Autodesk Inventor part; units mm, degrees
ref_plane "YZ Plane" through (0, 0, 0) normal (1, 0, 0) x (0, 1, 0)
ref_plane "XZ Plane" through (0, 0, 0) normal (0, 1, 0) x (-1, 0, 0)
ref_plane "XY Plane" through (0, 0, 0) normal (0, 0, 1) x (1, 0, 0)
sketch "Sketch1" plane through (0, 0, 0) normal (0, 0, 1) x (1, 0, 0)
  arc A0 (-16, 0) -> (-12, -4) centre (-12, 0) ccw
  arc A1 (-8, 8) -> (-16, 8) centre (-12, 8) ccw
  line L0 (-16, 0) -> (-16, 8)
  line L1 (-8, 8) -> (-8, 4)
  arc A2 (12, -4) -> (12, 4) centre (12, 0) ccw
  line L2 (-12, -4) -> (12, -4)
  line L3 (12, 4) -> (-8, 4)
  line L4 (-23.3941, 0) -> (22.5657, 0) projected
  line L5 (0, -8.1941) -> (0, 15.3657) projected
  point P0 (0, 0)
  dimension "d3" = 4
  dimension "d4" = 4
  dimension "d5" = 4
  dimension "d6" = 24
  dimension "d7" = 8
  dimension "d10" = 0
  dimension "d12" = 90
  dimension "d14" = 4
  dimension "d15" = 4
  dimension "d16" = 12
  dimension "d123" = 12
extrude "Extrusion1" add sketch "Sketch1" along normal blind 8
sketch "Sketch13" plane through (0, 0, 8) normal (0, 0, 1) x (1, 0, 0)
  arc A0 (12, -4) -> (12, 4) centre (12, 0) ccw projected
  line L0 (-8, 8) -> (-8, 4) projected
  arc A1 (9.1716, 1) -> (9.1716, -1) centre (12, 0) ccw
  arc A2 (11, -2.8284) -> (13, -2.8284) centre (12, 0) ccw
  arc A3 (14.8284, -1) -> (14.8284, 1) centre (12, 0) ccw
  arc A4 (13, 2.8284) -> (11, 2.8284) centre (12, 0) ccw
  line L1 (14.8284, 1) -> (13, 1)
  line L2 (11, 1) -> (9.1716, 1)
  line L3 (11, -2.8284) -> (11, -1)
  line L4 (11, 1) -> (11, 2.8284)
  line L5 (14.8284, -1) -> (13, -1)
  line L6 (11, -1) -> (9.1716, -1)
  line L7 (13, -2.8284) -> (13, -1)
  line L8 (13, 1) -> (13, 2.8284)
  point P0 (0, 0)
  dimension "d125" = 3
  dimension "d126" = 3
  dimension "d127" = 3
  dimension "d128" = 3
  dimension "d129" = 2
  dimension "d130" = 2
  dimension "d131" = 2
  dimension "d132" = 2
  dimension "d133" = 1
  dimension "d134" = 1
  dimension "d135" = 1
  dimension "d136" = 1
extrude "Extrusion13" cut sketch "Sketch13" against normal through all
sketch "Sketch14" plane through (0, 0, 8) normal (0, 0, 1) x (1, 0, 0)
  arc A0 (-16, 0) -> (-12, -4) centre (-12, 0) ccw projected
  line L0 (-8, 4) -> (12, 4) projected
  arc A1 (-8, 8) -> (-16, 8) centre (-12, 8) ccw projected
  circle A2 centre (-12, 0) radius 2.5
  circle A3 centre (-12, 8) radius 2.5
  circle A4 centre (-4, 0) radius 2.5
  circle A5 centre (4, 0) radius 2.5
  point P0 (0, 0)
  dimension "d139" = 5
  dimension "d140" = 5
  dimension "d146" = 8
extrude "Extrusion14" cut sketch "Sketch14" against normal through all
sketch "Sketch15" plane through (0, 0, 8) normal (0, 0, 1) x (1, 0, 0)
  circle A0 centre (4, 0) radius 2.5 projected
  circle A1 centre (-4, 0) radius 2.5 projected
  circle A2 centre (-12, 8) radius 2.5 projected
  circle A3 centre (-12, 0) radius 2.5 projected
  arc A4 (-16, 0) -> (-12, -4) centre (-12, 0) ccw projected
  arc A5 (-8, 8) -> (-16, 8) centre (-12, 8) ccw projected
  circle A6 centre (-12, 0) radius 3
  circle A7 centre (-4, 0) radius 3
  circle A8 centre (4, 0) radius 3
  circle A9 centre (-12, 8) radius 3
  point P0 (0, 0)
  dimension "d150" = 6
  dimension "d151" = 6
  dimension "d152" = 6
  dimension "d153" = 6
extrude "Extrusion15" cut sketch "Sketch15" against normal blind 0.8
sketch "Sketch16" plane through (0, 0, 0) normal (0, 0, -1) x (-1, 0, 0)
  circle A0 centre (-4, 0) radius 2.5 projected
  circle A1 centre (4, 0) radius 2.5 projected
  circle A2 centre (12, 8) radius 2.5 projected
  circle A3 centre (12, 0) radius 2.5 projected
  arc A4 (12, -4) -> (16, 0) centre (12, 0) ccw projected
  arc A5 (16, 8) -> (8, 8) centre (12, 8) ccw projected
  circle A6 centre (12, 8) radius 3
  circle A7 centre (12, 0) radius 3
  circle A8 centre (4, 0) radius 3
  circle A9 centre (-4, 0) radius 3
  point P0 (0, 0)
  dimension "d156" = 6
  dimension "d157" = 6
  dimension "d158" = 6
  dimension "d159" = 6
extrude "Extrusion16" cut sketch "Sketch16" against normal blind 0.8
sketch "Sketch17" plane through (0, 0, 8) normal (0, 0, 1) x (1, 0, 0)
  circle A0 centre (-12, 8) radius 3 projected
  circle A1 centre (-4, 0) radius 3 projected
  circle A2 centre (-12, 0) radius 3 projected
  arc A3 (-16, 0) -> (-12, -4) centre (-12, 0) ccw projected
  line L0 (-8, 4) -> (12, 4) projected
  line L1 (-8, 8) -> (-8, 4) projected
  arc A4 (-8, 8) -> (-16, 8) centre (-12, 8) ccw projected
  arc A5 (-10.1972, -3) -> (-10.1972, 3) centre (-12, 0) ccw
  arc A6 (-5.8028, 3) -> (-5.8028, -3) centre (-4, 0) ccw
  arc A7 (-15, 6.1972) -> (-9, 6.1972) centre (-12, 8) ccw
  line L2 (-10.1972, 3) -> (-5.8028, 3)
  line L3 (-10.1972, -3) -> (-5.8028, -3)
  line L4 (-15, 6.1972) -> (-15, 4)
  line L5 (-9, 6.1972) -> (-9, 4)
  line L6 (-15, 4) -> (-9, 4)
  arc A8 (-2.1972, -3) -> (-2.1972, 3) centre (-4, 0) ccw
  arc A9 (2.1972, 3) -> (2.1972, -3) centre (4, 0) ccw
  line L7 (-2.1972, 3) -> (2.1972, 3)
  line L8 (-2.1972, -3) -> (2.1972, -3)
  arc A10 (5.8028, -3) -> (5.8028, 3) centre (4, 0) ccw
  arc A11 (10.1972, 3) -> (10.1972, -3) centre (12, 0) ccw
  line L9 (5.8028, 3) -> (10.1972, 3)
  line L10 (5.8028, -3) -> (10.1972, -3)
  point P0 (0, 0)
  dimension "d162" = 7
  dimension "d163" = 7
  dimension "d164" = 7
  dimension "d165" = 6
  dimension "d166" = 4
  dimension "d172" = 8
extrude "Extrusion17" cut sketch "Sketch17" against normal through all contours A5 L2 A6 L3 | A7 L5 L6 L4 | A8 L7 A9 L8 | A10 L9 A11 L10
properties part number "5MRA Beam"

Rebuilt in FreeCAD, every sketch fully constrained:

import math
import FreeCAD as App
import Part
import Sketcher
from FreeCAD import Vector
Q = App.Units.Quantity

doc = App.newDocument("Part")
params = doc.addObject("Spreadsheet::Sheet", "Params")
for row, (alias, value) in enumerate([
    ("sketch1_radius", "4 mm"),
    ("sketch1_width", "24 mm"),
    ("sketch1_height", "4 mm"),
    ("pad1_length", "8 mm"),
    ("sketch2_radius", "3 mm"),
    ("sketch3_diameter", "5 mm"),
    ("sketch4_diameter", "6 mm"),
    ("sketch4_diameter2", "5 mm"),
    ("pocket3_length", "0.8 mm"),
    ("sketch5_diameter", "6 mm"),
    ("sketch5_diameter2", "5 mm"),
    ("pocket4_length", "0.8 mm"),
    ("sketch6_radius", "3.5 mm"),
    ("sketch6_width", "6 mm"),
], start=1):
    params.set(f"A{row}", alias)
    params.set(f"B{row}", "=" + value)
    params.setAlias(f"B{row}", alias)

body = doc.addObject("PartDesign::Body", "Body")

# Sketch on XY plane
sketch1 = body.newObject("Sketcher::SketchObject", "Sketch")
sketch1.AttachmentSupport = (doc.getObject("XY_Plane"), [""])
sketch1.MapMode = "FlatFace"
sketch1.addGeometry(Part.LineSegment(Vector(-12, -4, 0), Vector(12, -4, 0)), False)
sketch1.addGeometry(Part.ArcOfCircle(Part.Circle(Vector(12, 0, 0), Vector(0, 0, 1), 4), math.radians(-90), math.radians(90)), False)
sketch1.addGeometry(Part.LineSegment(Vector(12, 4, 0), Vector(-8, 4, 0)), False)
sketch1.addGeometry(Part.LineSegment(Vector(-8, 4, 0), Vector(-8, 8, 0)), False)
sketch1.addGeometry(Part.ArcOfCircle(Part.Circle(Vector(-12, 8, 0), Vector(0, 0, 1), 4), math.radians(0), math.radians(180)), False)
sketch1.addGeometry(Part.LineSegment(Vector(-16, 8, 0), Vector(-16, 0, 0)), False)
sketch1.addGeometry(Part.ArcOfCircle(Part.Circle(Vector(-12, 0, 0), Vector(0, 0, 1), 4), math.radians(180), math.radians(270)), False)
sketch1.addConstraint(Sketcher.Constraint("Tangent", 0, 2, 1, 1))
sketch1.addConstraint(Sketcher.Constraint("Tangent", 1, 2, 2, 1))
sketch1.addConstraint(Sketcher.Constraint("Coincident", 2, 2, 3, 1))
sketch1.addConstraint(Sketcher.Constraint("Tangent", 3, 2, 4, 1))
sketch1.addConstraint(Sketcher.Constraint("Tangent", 4, 2, 5, 1))
sketch1.addConstraint(Sketcher.Constraint("Tangent", 5, 2, 6, 1))
sketch1.addConstraint(Sketcher.Constraint("Tangent", 6, 2, 0, 1))
sketch1.addConstraint(Sketcher.Constraint("Horizontal", 0))
sketch1.addConstraint(Sketcher.Constraint("Horizontal", 2))
sketch1.addConstraint(Sketcher.Constraint("Vertical", 3))
sketch1.addConstraint(Sketcher.Constraint("Vertical", 5))
sketch1.addConstraint(Sketcher.Constraint("Equal", 1, 4))
sketch1.addConstraint(Sketcher.Constraint("Equal", 4, 6))
sketch1.addConstraint(Sketcher.Constraint("Symmetric", 1, 3, 6, 3, -1, 1))
sketch1.addConstraint(Sketcher.Constraint("Radius", 1, Q("4 mm")))
sketch1.addConstraint(Sketcher.Constraint("DistanceX", 0, 1, 0, 2, Q("24 mm")))
sketch1.addConstraint(Sketcher.Constraint("DistanceY", 3, 1, 3, 2, Q("4 mm")))
sketch1.setExpression("Constraints[14]", "Params.sketch1_radius")
sketch1.setExpression("Constraints[15]", "Params.sketch1_width")
sketch1.setExpression("Constraints[16]", "Params.sketch1_height")
pad1 = body.newObject("PartDesign::Pad", "Pad")
pad1.Profile = sketch1
pad1.setExpression("Length", "Params.pad1_length")

# Sketch on XY plane
sketch2 = body.newObject("Sketcher::SketchObject", "Sketch001")
sketch2.AttachmentSupport = (doc.getObject("XY_Plane"), [""])
sketch2.MapMode = "FlatFace"
sketch2.AttachmentOffset = App.Placement(Vector(0, 0, 8), App.Rotation())
sketch2.addGeometry(Part.LineSegment(Vector(11, 1, 0), Vector(9.2, 1, 0)), False)
sketch2.addGeometry(Part.ArcOfCircle(Part.Circle(Vector(12, 0, 0), Vector(0, 0, 1), 3), math.radians(161), math.radians(199)), False)
sketch2.addGeometry(Part.LineSegment(Vector(9.2, -1, 0), Vector(11, -1, 0)), False)
sketch2.addGeometry(Part.LineSegment(Vector(11, -1, 0), Vector(11, -2.8, 0)), False)
sketch2.addGeometry(Part.ArcOfCircle(Part.Circle(Vector(12, 0, 0), Vector(0, 0, 1), 3), math.radians(-109), math.radians(-71)), False)
sketch2.addGeometry(Part.LineSegment(Vector(13, -2.8, 0), Vector(13, -1, 0)), False)
sketch2.addGeometry(Part.LineSegment(Vector(13, -1, 0), Vector(14.8, -1, 0)), False)
sketch2.addGeometry(Part.ArcOfCircle(Part.Circle(Vector(12, 0, 0), Vector(0, 0, 1), 3), math.radians(-19), math.radians(19)), False)
sketch2.addGeometry(Part.LineSegment(Vector(14.8, 1, 0), Vector(13, 1, 0)), False)
sketch2.addGeometry(Part.LineSegment(Vector(13, 1, 0), Vector(13, 2.8, 0)), False)
sketch2.addGeometry(Part.ArcOfCircle(Part.Circle(Vector(12, 0, 0), Vector(0, 0, 1), 3), math.radians(71), math.radians(109)), False)
sketch2.addGeometry(Part.LineSegment(Vector(11, 2.8, 0), Vector(11, 1, 0)), False)
sketch2.addConstraint(Sketcher.Constraint("Coincident", 0, 2, 1, 1))
sketch2.addConstraint(Sketcher.Constraint("Coincident", 1, 2, 2, 1))
sketch2.addConstraint(Sketcher.Constraint("Coincident", 2, 2, 3, 1))
sketch2.addConstraint(Sketcher.Constraint("Coincident", 3, 2, 4, 1))
sketch2.addConstraint(Sketcher.Constraint("Coincident", 4, 2, 5, 1))
sketch2.addConstraint(Sketcher.Constraint("Coincident", 5, 2, 6, 1))
sketch2.addConstraint(Sketcher.Constraint("Coincident", 6, 2, 7, 1))
sketch2.addConstraint(Sketcher.Constraint("Coincident", 7, 2, 8, 1))
sketch2.addConstraint(Sketcher.Constraint("Coincident", 8, 2, 9, 1))
sketch2.addConstraint(Sketcher.Constraint("Coincident", 9, 2, 10, 1))
sketch2.addConstraint(Sketcher.Constraint("Coincident", 10, 2, 11, 1))
sketch2.addConstraint(Sketcher.Constraint("Coincident", 11, 2, 0, 1))
sketch2.addConstraint(Sketcher.Constraint("Horizontal", 0))
sketch2.addConstraint(Sketcher.Constraint("Horizontal", 2))
sketch2.addConstraint(Sketcher.Constraint("Vertical", 3))
sketch2.addConstraint(Sketcher.Constraint("Vertical", 5))
sketch2.addConstraint(Sketcher.Constraint("Horizontal", 6))
sketch2.addConstraint(Sketcher.Constraint("Horizontal", 8))
sketch2.addConstraint(Sketcher.Constraint("Vertical", 9))
sketch2.addConstraint(Sketcher.Constraint("Vertical", 11))
sketch2.addConstraint(Sketcher.Constraint("Coincident", 4, 3, 1, 3))
sketch2.addConstraint(Sketcher.Constraint("Coincident", 7, 3, 1, 3))
sketch2.addConstraint(Sketcher.Constraint("Coincident", 10, 3, 1, 3))
sketch2.addConstraint(Sketcher.Constraint("Equal", 1, 4))
sketch2.addConstraint(Sketcher.Constraint("Equal", 4, 7))
sketch2.addConstraint(Sketcher.Constraint("Equal", 7, 10))
sketch2.addConstraint(Sketcher.Constraint("Symmetric", 0, 2, 1, 2, -1))
sketch2.addConstraint(Sketcher.Constraint("Symmetric", 5, 2, 8, 2, -1))
sketch2.addConstraint(Sketcher.Constraint("Horizontal", 3, 2, 4, 2))
sketch2.addConstraint(Sketcher.Constraint("Horizontal", 2, 2, 5, 2))
sketch2.addConstraint(Sketcher.Constraint("Horizontal", 9, 2, 10, 2))
sketch2.addConstraint(Sketcher.Constraint("Equal", 8, 3))
sketch2.addConstraint(Sketcher.Constraint("Radius", 1, Q("3 mm")))
sketch2.addConstraint(Sketcher.Constraint("DistanceY", -1, 1, 0, 2, Q("1 mm")))
sketch2.addConstraint(Sketcher.Constraint("DistanceX", -1, 1, 1, 3, Q("12 mm")))
sketch2.setExpression("Constraints[32]", "Params.sketch2_radius")
pocket1 = body.newObject("PartDesign::Pocket", "Pocket")
pocket1.Profile = sketch2
pocket1.Type = "ThroughAll"

# Sketch on XY plane
sketch3 = body.newObject("Sketcher::SketchObject", "Sketch002")
sketch3.AttachmentSupport = (doc.getObject("XY_Plane"), [""])
sketch3.MapMode = "FlatFace"
sketch3.AttachmentOffset = App.Placement(Vector(0, 0, 8), App.Rotation())
sketch3.addGeometry(Part.Circle(Vector(-12, 0, 0), Vector(0, 0, 1), 2.5), False)
sketch3.addGeometry(Part.Circle(Vector(-12, 8, 0), Vector(0, 0, 1), 2.5), False)
sketch3.addGeometry(Part.Circle(Vector(-4, 0, 0), Vector(0, 0, 1), 2.5), False)
sketch3.addGeometry(Part.Circle(Vector(4, 0, 0), Vector(0, 0, 1), 2.5), False)
sketch3.addConstraint(Sketcher.Constraint("Equal", 0, 1))
sketch3.addConstraint(Sketcher.Constraint("Equal", 1, 2))
sketch3.addConstraint(Sketcher.Constraint("Equal", 2, 3))
sketch3.addConstraint(Sketcher.Constraint("Symmetric", 2, 3, 3, 3, -1, 1))
sketch3.addConstraint(Sketcher.Constraint("PointOnObject", 0, 3, -1))
sketch3.addConstraint(Sketcher.Constraint("PointOnObject", 2, 3, -1))
sketch3.addConstraint(Sketcher.Constraint("Vertical", 0, 3, 1, 3))
sketch3.addConstraint(Sketcher.Constraint("Diameter", 0, Q("5 mm")))
sketch3.addConstraint(Sketcher.Constraint("DistanceY", -1, 1, 1, 3, Q("8 mm")))
sketch3.addConstraint(Sketcher.Constraint("DistanceX", 0, 3, 2, 3, Q("8 mm")))
sketch3.addConstraint(Sketcher.Constraint("DistanceX", 2, 3, 3, 3, Q("8 mm")))
sketch3.setExpression("Constraints[7]", "Params.sketch3_diameter")
pocket2 = body.newObject("PartDesign::Pocket", "Pocket001")
pocket2.Profile = sketch3
pocket2.Type = "ThroughAll"

# Sketch on XY plane
sketch4 = body.newObject("Sketcher::SketchObject", "Sketch003")
sketch4.AttachmentSupport = (doc.getObject("XY_Plane"), [""])
sketch4.MapMode = "FlatFace"
sketch4.AttachmentOffset = App.Placement(Vector(0, 0, 8), App.Rotation())
sketch4.addGeometry(Part.Circle(Vector(-12, 0, 0), Vector(0, 0, 1), 3), False)
sketch4.addGeometry(Part.Circle(Vector(-12, 0, 0), Vector(0, 0, 1), 2.5), False)
sketch4.addGeometry(Part.Circle(Vector(-4, 0, 0), Vector(0, 0, 1), 3), False)
sketch4.addGeometry(Part.Circle(Vector(-4, 0, 0), Vector(0, 0, 1), 2.5), False)
sketch4.addGeometry(Part.Circle(Vector(4, 0, 0), Vector(0, 0, 1), 3), False)
sketch4.addGeometry(Part.Circle(Vector(4, 0, 0), Vector(0, 0, 1), 2.5), False)
sketch4.addGeometry(Part.Circle(Vector(-12, 8, 0), Vector(0, 0, 1), 3), False)
sketch4.addGeometry(Part.Circle(Vector(-12, 8, 0), Vector(0, 0, 1), 2.5), False)
sketch4.addConstraint(Sketcher.Constraint("Coincident", 1, 3, 0, 3))
sketch4.addConstraint(Sketcher.Constraint("Coincident", 3, 3, 2, 3))
sketch4.addConstraint(Sketcher.Constraint("Coincident", 5, 3, 4, 3))
sketch4.addConstraint(Sketcher.Constraint("Coincident", 7, 3, 6, 3))
sketch4.addConstraint(Sketcher.Constraint("Equal", 0, 2))
sketch4.addConstraint(Sketcher.Constraint("Equal", 1, 3))
sketch4.addConstraint(Sketcher.Constraint("Equal", 2, 4))
sketch4.addConstraint(Sketcher.Constraint("Equal", 3, 5))
sketch4.addConstraint(Sketcher.Constraint("Equal", 4, 6))
sketch4.addConstraint(Sketcher.Constraint("Equal", 5, 7))
sketch4.addConstraint(Sketcher.Constraint("Symmetric", 2, 3, 4, 3, -1, 1))
sketch4.addConstraint(Sketcher.Constraint("PointOnObject", 0, 3, -1))
sketch4.addConstraint(Sketcher.Constraint("PointOnObject", 2, 3, -1))
sketch4.addConstraint(Sketcher.Constraint("Vertical", 1, 3, 6, 3))
sketch4.addConstraint(Sketcher.Constraint("Diameter", 0, Q("6 mm")))
sketch4.addConstraint(Sketcher.Constraint("Diameter", 1, Q("5 mm")))
sketch4.addConstraint(Sketcher.Constraint("DistanceX", 0, 3, -1, 1, Q("12 mm")))
sketch4.addConstraint(Sketcher.Constraint("DistanceX", 2, 3, -1, 1, Q("4 mm")))
sketch4.addConstraint(Sketcher.Constraint("DistanceY", -1, 1, 6, 3, Q("8 mm")))
sketch4.setExpression("Constraints[14]", "Params.sketch4_diameter")
sketch4.setExpression("Constraints[15]", "Params.sketch4_diameter2")
pocket3 = body.newObject("PartDesign::Pocket", "Pocket002")
pocket3.Profile = sketch4
pocket3.setExpression("Length", "Params.pocket3_length")

# Sketch on XY plane
sketch5 = body.newObject("Sketcher::SketchObject", "Sketch004")
sketch5.AttachmentSupport = (doc.getObject("XY_Plane"), [""])
sketch5.MapMode = "FlatFace"
sketch5.addGeometry(Part.Circle(Vector(-12, 8, 0), Vector(0, 0, 1), 3), False)
sketch5.addGeometry(Part.Circle(Vector(-12, 8, 0), Vector(0, 0, 1), 2.5), False)
sketch5.addGeometry(Part.Circle(Vector(-12, 0, 0), Vector(0, 0, 1), 3), False)
sketch5.addGeometry(Part.Circle(Vector(-12, 0, 0), Vector(0, 0, 1), 2.5), False)
sketch5.addGeometry(Part.Circle(Vector(-4, 0, 0), Vector(0, 0, 1), 3), False)
sketch5.addGeometry(Part.Circle(Vector(-4, 0, 0), Vector(0, 0, 1), 2.5), False)
sketch5.addGeometry(Part.Circle(Vector(4, 0, 0), Vector(0, 0, 1), 3), False)
sketch5.addGeometry(Part.Circle(Vector(4, 0, 0), Vector(0, 0, 1), 2.5), False)
sketch5.addConstraint(Sketcher.Constraint("Coincident", 1, 3, 0, 3))
sketch5.addConstraint(Sketcher.Constraint("Coincident", 3, 3, 2, 3))
sketch5.addConstraint(Sketcher.Constraint("Coincident", 5, 3, 4, 3))
sketch5.addConstraint(Sketcher.Constraint("Coincident", 7, 3, 6, 3))
sketch5.addConstraint(Sketcher.Constraint("Equal", 0, 2))
sketch5.addConstraint(Sketcher.Constraint("Equal", 1, 3))
sketch5.addConstraint(Sketcher.Constraint("Equal", 2, 4))
sketch5.addConstraint(Sketcher.Constraint("Equal", 3, 5))
sketch5.addConstraint(Sketcher.Constraint("Equal", 4, 6))
sketch5.addConstraint(Sketcher.Constraint("Equal", 5, 7))
sketch5.addConstraint(Sketcher.Constraint("Symmetric", 4, 3, 6, 3, -1, 1))
sketch5.addConstraint(Sketcher.Constraint("PointOnObject", 2, 3, -1))
sketch5.addConstraint(Sketcher.Constraint("PointOnObject", 4, 3, -1))
sketch5.addConstraint(Sketcher.Constraint("Vertical", 1, 3, 2, 3))
sketch5.addConstraint(Sketcher.Constraint("Diameter", 0, Q("6 mm")))
sketch5.addConstraint(Sketcher.Constraint("Diameter", 1, Q("5 mm")))
sketch5.addConstraint(Sketcher.Constraint("DistanceX", 0, 3, -1, 1, Q("12 mm")))
sketch5.addConstraint(Sketcher.Constraint("DistanceY", -1, 1, 0, 3, Q("8 mm")))
sketch5.addConstraint(Sketcher.Constraint("DistanceX", 4, 3, -1, 1, Q("4 mm")))
sketch5.setExpression("Constraints[14]", "Params.sketch5_diameter")
sketch5.setExpression("Constraints[15]", "Params.sketch5_diameter2")
pocket4 = body.newObject("PartDesign::Pocket", "Pocket003")
pocket4.Profile = sketch5
pocket4.setExpression("Length", "Params.pocket4_length")
pocket4.Reversed = True

# Sketch on XY plane
sketch6 = body.newObject("Sketcher::SketchObject", "Sketch005")
sketch6.AttachmentSupport = (doc.getObject("XY_Plane"), [""])
sketch6.MapMode = "FlatFace"
sketch6.AttachmentOffset = App.Placement(Vector(0, 0, 8), App.Rotation())
sketch6.addGeometry(Part.ArcOfCircle(Part.Circle(Vector(-12, 0, 0), Vector(0, 0, 1), 3.5), math.radians(-59), math.radians(59)), False)
sketch6.addGeometry(Part.LineSegment(Vector(-10.2, -3, 0), Vector(-5.8, -3, 0)), False)
sketch6.addGeometry(Part.ArcOfCircle(Part.Circle(Vector(-4, 0, 0), Vector(0, 0, 1), 3.5), math.radians(121), math.radians(239)), False)
sketch6.addGeometry(Part.LineSegment(Vector(-5.8, 3, 0), Vector(-10.2, 3, 0)), False)
sketch6.addGeometry(Part.ArcOfCircle(Part.Circle(Vector(-12, 8, 0), Vector(0, 0, 1), 3.5), math.radians(-149), math.radians(-31)), False)
sketch6.addGeometry(Part.LineSegment(Vector(-15, 6.2, 0), Vector(-15, 4, 0)), False)
sketch6.addGeometry(Part.LineSegment(Vector(-15, 4, 0), Vector(-9, 4, 0)), False)
sketch6.addGeometry(Part.LineSegment(Vector(-9, 4, 0), Vector(-9, 6.2, 0)), False)
sketch6.addGeometry(Part.ArcOfCircle(Part.Circle(Vector(-4, 0, 0), Vector(0, 0, 1), 3.5), math.radians(-59), math.radians(59)), False)
sketch6.addGeometry(Part.LineSegment(Vector(-2.2, -3, 0), Vector(2.2, -3, 0)), False)
sketch6.addGeometry(Part.ArcOfCircle(Part.Circle(Vector(4, 0, 0), Vector(0, 0, 1), 3.5), math.radians(121), math.radians(239)), False)
sketch6.addGeometry(Part.LineSegment(Vector(2.2, 3, 0), Vector(-2.2, 3, 0)), False)
sketch6.addGeometry(Part.ArcOfCircle(Part.Circle(Vector(4, 0, 0), Vector(0, 0, 1), 3.5), math.radians(-59), math.radians(59)), False)
sketch6.addGeometry(Part.LineSegment(Vector(5.8, -3, 0), Vector(10.2, -3, 0)), False)
sketch6.addGeometry(Part.ArcOfCircle(Part.Circle(Vector(12, 0, 0), Vector(0, 0, 1), 3.5), math.radians(121), math.radians(239)), False)
sketch6.addGeometry(Part.LineSegment(Vector(10.2, 3, 0), Vector(5.8, 3, 0)), False)
sketch6.addConstraint(Sketcher.Constraint("Coincident", 0, 1, 1, 1))
sketch6.addConstraint(Sketcher.Constraint("Coincident", 1, 2, 2, 2))
sketch6.addConstraint(Sketcher.Constraint("Coincident", 2, 1, 3, 1))
sketch6.addConstraint(Sketcher.Constraint("Coincident", 3, 2, 0, 2))
sketch6.addConstraint(Sketcher.Constraint("Coincident", 4, 1, 5, 1))
sketch6.addConstraint(Sketcher.Constraint("Coincident", 5, 2, 6, 1))
sketch6.addConstraint(Sketcher.Constraint("Coincident", 6, 2, 7, 1))
sketch6.addConstraint(Sketcher.Constraint("Coincident", 7, 2, 4, 2))
sketch6.addConstraint(Sketcher.Constraint("Coincident", 8, 1, 9, 1))
sketch6.addConstraint(Sketcher.Constraint("Coincident", 9, 2, 10, 2))
sketch6.addConstraint(Sketcher.Constraint("Coincident", 10, 1, 11, 1))
sketch6.addConstraint(Sketcher.Constraint("Coincident", 11, 2, 8, 2))
sketch6.addConstraint(Sketcher.Constraint("Coincident", 12, 1, 13, 1))
sketch6.addConstraint(Sketcher.Constraint("Coincident", 13, 2, 14, 2))
sketch6.addConstraint(Sketcher.Constraint("Coincident", 14, 1, 15, 1))
sketch6.addConstraint(Sketcher.Constraint("Coincident", 15, 2, 12, 2))
sketch6.addConstraint(Sketcher.Constraint("Horizontal", 1))
sketch6.addConstraint(Sketcher.Constraint("Horizontal", 3))
sketch6.addConstraint(Sketcher.Constraint("Vertical", 5))
sketch6.addConstraint(Sketcher.Constraint("Horizontal", 6))
sketch6.addConstraint(Sketcher.Constraint("Vertical", 7))
sketch6.addConstraint(Sketcher.Constraint("Horizontal", 9))
sketch6.addConstraint(Sketcher.Constraint("Horizontal", 11))
sketch6.addConstraint(Sketcher.Constraint("Horizontal", 13))
sketch6.addConstraint(Sketcher.Constraint("Horizontal", 15))
sketch6.addConstraint(Sketcher.Constraint("Coincident", 8, 3, 2, 3))
sketch6.addConstraint(Sketcher.Constraint("Coincident", 12, 3, 10, 3))
sketch6.addConstraint(Sketcher.Constraint("Equal", 0, 2))
sketch6.addConstraint(Sketcher.Constraint("Equal", 2, 4))
sketch6.addConstraint(Sketcher.Constraint("Equal", 4, 8))
sketch6.addConstraint(Sketcher.Constraint("Equal", 8, 10))
sketch6.addConstraint(Sketcher.Constraint("Equal", 10, 12))
sketch6.addConstraint(Sketcher.Constraint("Equal", 12, 14))
sketch6.addConstraint(Sketcher.Constraint("Symmetric", 2, 3, 10, 3, -1, 1))
sketch6.addConstraint(Sketcher.Constraint("Symmetric", 0, 3, 14, 3, -1, 1))
sketch6.addConstraint(Sketcher.Constraint("Symmetric", 1, 2, 12, 1, -2))
sketch6.addConstraint(Sketcher.Constraint("Symmetric", 3, 2, 14, 1, -2))
sketch6.addConstraint(Sketcher.Constraint("Horizontal", 4, 1, 7, 2))
sketch6.addConstraint(Sketcher.Constraint("Horizontal", 1, 2, 8, 1))
sketch6.addConstraint(Sketcher.Constraint("Horizontal", 3, 2, 10, 1))
sketch6.addConstraint(Sketcher.Constraint("Vertical", 0, 3, 4, 3))
sketch6.addConstraint(Sketcher.Constraint("Vertical", 1, 2, 2, 1))
sketch6.addConstraint(Sketcher.Constraint("Equal", 3, 9))
sketch6.addConstraint(Sketcher.Constraint("Radius", 0, Q("3.5 mm")))
sketch6.addConstraint(Sketcher.Constraint("DistanceX", 6, 1, 6, 2, Q("6 mm")))
sketch6.addConstraint(Sketcher.Constraint("DistanceX", 2, 3, -1, 1, Q("4 mm")))
sketch6.addConstraint(Sketcher.Constraint("DistanceY", -1, 1, 4, 3, Q("8 mm")))
sketch6.addConstraint(Sketcher.Constraint("DistanceY", -1, 1, 5, 2, Q("4 mm")))
sketch6.addConstraint(Sketcher.Constraint("DistanceY", 1, 2, 2, 1, Q("6 mm")))
sketch6.setExpression("Constraints[43]", "Params.sketch6_radius")
sketch6.setExpression("Constraints[44]", "Params.sketch6_width")
pocket5 = body.newObject("PartDesign::Pocket", "Pocket004")
pocket5.Profile = sketch6
pocket5.Type = "ThroughAll"

doc.recompute()
